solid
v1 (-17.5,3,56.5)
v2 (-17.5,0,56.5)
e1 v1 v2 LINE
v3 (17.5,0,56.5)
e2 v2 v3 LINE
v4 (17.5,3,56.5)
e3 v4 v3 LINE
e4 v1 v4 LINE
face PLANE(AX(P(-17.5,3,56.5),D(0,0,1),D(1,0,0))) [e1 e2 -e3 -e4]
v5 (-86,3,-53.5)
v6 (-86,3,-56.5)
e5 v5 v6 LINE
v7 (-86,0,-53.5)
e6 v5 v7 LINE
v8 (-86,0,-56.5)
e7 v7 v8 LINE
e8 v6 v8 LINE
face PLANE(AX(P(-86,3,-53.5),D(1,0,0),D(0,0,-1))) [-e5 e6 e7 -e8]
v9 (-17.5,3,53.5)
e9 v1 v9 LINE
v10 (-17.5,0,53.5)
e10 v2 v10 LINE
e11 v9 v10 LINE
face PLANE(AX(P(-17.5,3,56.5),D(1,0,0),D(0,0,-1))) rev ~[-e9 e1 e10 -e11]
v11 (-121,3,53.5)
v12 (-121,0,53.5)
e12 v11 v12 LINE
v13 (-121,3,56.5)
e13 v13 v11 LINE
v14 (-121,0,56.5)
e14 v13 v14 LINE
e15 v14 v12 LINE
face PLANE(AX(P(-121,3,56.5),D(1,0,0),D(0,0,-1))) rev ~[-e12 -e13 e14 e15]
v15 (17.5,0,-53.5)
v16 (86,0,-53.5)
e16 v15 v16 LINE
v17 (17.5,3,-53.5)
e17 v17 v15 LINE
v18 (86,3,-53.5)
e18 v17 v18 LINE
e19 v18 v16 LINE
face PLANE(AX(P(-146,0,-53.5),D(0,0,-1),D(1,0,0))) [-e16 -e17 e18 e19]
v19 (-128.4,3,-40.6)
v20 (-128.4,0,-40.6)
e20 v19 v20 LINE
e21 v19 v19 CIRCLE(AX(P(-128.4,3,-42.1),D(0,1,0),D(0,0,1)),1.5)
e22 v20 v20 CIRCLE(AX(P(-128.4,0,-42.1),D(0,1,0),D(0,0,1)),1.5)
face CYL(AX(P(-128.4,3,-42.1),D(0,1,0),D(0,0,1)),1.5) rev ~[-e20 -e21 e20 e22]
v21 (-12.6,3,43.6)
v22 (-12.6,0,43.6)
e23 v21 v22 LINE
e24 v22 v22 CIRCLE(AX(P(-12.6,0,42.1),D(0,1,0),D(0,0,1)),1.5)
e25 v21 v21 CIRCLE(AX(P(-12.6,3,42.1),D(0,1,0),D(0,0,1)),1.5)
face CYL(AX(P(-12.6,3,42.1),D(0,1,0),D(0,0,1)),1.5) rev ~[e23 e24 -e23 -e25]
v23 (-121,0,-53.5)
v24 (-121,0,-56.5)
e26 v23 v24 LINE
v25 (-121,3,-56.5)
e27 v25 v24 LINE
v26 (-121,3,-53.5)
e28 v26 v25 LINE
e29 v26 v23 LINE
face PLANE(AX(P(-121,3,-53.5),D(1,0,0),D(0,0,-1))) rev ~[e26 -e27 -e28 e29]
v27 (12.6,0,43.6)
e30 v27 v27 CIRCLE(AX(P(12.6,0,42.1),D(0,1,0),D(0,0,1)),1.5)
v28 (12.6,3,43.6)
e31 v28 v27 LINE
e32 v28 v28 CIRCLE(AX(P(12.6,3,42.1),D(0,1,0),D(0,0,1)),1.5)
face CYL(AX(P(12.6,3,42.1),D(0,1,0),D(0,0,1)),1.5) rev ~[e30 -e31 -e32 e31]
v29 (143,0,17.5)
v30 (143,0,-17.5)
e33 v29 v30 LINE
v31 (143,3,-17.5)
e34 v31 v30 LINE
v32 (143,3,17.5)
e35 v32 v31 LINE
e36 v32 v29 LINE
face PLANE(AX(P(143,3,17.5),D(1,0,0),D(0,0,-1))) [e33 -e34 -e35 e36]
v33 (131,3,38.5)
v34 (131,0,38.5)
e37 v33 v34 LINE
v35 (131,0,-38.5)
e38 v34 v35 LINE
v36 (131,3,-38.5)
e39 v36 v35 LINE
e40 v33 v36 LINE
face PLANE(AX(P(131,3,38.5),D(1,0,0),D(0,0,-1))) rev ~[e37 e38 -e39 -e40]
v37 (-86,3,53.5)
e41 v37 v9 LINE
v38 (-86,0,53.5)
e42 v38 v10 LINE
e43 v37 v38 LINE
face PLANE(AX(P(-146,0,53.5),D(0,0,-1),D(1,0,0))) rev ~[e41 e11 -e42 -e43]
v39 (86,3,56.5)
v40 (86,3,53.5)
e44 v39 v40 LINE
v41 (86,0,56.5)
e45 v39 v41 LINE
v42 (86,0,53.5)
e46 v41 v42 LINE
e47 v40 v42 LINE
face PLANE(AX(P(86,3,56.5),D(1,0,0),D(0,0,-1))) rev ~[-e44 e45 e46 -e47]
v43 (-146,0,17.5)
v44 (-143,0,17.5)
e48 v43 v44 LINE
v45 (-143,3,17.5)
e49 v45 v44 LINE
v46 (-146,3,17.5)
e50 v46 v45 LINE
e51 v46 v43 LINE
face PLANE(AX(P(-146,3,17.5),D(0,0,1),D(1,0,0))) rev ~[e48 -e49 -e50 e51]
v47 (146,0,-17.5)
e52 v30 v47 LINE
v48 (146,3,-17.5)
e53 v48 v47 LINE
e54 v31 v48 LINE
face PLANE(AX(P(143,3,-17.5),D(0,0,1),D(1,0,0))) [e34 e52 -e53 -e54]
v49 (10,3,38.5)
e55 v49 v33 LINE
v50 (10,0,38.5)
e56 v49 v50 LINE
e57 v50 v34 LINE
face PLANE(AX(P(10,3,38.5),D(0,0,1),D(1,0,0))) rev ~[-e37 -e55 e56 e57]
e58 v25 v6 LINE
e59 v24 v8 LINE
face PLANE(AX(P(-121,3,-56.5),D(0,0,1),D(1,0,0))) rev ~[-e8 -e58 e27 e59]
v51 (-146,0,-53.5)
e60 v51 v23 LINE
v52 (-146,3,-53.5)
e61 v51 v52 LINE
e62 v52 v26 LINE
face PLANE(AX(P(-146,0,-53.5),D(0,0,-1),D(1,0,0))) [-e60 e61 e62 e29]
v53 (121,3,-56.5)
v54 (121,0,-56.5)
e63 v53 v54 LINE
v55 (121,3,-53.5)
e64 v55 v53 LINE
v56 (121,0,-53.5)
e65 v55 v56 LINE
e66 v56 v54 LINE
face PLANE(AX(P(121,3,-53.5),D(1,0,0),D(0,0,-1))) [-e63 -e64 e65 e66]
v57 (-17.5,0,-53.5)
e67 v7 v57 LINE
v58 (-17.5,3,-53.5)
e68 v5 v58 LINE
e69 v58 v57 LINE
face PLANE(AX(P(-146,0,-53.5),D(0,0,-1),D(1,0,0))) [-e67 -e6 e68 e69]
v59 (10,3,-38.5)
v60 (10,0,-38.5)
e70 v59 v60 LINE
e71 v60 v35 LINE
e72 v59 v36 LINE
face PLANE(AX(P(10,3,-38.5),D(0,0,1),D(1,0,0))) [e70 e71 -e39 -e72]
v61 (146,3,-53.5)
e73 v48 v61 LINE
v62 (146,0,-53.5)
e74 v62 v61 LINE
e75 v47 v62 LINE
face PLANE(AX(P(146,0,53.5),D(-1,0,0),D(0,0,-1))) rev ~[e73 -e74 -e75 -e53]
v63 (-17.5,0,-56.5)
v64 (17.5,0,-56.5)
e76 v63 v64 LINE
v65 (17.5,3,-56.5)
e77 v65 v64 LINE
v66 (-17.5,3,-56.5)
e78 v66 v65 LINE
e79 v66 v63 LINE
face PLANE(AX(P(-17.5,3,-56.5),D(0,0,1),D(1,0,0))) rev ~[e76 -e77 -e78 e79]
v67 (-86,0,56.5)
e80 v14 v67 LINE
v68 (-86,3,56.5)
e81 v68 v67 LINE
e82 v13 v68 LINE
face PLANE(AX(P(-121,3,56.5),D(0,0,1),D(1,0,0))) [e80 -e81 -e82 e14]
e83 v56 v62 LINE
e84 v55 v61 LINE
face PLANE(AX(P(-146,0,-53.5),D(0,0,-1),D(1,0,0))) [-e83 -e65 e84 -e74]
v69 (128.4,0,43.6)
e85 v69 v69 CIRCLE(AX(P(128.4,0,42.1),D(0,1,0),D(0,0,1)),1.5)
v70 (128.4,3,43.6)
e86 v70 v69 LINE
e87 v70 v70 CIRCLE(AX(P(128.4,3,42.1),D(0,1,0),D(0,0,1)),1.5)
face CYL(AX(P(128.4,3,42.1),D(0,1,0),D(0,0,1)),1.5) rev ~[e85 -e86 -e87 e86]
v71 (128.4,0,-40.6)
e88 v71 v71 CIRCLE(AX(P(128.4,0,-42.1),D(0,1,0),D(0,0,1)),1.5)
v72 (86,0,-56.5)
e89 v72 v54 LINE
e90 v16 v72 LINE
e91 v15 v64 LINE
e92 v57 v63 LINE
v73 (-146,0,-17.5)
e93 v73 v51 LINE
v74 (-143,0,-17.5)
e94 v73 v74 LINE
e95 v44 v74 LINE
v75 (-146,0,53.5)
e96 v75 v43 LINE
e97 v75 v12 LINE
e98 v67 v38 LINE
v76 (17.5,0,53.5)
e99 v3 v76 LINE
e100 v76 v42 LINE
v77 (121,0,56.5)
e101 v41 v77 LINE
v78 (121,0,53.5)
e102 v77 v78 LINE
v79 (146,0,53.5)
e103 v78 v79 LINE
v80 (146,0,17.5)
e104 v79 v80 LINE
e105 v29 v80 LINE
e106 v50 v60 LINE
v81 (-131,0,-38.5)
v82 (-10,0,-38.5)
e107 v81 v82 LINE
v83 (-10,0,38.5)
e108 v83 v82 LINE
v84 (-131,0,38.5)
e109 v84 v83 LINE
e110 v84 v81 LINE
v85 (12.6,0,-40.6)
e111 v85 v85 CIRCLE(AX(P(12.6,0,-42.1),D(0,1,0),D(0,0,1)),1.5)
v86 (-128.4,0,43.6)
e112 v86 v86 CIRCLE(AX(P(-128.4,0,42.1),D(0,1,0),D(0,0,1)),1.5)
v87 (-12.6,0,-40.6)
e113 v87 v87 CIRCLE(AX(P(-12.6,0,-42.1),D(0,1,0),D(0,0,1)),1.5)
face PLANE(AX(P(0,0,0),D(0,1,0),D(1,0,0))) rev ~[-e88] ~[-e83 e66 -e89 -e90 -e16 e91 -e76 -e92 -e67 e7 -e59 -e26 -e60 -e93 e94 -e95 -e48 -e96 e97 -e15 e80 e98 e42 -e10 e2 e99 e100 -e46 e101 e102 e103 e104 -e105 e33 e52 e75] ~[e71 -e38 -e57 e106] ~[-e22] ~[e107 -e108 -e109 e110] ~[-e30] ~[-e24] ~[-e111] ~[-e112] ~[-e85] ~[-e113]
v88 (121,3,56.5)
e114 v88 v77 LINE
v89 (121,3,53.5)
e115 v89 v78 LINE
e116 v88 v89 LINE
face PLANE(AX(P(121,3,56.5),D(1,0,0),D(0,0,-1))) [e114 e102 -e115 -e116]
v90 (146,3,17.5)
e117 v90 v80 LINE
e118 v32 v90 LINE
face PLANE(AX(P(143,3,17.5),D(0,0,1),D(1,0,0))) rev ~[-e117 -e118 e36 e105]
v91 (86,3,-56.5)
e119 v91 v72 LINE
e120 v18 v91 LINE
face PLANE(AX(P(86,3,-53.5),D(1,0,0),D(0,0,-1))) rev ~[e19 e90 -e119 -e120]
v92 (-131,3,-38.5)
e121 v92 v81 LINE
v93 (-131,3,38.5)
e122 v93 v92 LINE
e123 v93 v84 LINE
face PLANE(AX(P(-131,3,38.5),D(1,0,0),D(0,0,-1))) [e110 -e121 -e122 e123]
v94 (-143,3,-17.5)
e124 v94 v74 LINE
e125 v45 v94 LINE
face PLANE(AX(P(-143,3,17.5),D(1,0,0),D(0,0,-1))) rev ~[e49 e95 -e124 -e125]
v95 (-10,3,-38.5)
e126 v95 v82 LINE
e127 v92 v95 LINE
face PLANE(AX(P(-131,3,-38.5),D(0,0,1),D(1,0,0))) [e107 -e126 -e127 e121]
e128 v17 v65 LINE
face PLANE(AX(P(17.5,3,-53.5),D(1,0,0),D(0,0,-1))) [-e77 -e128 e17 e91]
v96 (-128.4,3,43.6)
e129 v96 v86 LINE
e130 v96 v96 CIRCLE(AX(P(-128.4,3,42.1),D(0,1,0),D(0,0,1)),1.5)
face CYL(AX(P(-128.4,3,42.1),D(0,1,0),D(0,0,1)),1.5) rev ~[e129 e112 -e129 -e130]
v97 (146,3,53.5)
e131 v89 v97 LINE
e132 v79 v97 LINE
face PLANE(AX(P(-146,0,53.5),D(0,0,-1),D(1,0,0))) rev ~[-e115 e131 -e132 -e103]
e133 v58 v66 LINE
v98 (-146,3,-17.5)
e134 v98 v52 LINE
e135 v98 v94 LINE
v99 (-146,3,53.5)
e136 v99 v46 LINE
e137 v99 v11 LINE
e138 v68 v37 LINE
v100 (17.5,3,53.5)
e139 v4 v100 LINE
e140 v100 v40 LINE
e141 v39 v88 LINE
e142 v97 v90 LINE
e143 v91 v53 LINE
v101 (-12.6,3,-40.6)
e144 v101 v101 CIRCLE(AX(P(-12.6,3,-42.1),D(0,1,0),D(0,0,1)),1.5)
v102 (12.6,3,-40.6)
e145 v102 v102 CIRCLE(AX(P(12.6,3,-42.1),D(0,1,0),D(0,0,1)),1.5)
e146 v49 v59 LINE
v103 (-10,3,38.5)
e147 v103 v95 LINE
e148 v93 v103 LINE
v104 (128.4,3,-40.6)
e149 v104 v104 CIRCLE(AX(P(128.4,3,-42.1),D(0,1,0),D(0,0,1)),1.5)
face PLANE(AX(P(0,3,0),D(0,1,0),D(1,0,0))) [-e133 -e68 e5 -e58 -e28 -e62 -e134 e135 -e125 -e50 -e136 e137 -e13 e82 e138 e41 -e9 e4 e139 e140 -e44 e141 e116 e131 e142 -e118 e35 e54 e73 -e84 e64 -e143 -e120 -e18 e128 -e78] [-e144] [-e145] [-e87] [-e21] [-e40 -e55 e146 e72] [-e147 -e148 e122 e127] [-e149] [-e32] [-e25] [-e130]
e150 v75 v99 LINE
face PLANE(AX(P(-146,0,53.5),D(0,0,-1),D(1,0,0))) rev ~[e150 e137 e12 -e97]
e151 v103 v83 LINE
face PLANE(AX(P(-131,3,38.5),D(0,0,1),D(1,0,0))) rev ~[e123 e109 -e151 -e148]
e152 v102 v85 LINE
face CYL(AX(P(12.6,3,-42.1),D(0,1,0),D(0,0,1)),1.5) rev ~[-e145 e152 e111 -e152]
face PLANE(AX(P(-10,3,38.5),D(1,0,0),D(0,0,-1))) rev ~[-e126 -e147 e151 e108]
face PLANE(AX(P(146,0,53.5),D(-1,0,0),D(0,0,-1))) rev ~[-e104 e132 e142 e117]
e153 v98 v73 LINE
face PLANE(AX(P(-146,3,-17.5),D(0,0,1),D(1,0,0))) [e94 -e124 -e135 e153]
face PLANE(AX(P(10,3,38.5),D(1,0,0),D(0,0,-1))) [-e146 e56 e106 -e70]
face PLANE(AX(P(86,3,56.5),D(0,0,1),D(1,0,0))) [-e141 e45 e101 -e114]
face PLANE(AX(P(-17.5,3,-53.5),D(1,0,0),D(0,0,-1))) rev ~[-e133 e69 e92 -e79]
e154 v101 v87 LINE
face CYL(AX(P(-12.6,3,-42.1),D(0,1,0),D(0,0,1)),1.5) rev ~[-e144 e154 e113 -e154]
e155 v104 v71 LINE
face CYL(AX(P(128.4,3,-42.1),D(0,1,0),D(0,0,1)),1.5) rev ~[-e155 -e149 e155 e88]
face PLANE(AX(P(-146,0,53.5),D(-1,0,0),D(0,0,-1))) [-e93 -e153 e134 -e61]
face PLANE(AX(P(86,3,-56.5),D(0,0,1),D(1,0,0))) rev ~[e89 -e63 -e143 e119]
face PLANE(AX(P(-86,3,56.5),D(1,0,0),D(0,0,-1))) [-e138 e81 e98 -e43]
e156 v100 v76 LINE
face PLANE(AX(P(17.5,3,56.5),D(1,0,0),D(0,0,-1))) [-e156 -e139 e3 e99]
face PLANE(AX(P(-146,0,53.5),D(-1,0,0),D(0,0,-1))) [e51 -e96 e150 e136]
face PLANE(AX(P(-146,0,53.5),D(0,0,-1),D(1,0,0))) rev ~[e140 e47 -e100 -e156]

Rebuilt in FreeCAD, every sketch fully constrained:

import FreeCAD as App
import Part
import Sketcher
Q = App.Units.Quantity


def add_polygon(sketch, points):
    """Adds a closed chain of lines whose ends are joined by coincident constraints."""
    first, n = sketch.GeometryCount, len(points)
    for a, b in zip(points, points[1:] + points[:1]):
        sketch.addGeometry(Part.LineSegment(App.Vector(*a, 0), App.Vector(*b, 0)), False)
    for i in range(n):
        sketch.addConstraint(Sketcher.Constraint("Coincident", first + i, 2, first + (i + 1) % n, 1))

doc = App.newDocument("Part")
body = doc.addObject("PartDesign::Body", "Body")

# Sketch on XZ plane
sketch1 = body.newObject("Sketcher::SketchObject", "Sketch")
sketch1.AttachmentSupport = (doc.getObject("XZ_Plane"), [""])
sketch1.MapMode = "FlatFace"
add_polygon(sketch1, [(-146, -54), (-146, 54), (146, 54), (146, -54)])  # lines 0-3
sketch1.addConstraint([
    Sketcher.Constraint("Vertical", 0),
    Sketcher.Constraint("Horizontal", 1),
    Sketcher.Constraint("Vertical", 2),
    Sketcher.Constraint("Horizontal", 3),
    Sketcher.Constraint("Symmetric", 0, 2, 2, 2, -1, 1),
    Sketcher.Constraint("DistanceX", 1, 1, 1, 2, Q("292 mm")),
    Sketcher.Constraint("DistanceY", 0, 1, 0, 2, Q("107 mm")),
])
pad1 = body.newObject("PartDesign::Pad", "Pad")
pad1.Profile = sketch1
pad1.Length = 3
pad1.Reversed = True

# Sketch on XZ plane
sketch2 = body.newObject("Sketcher::SketchObject", "Sketch001")
sketch2.AttachmentSupport = (doc.getObject("XZ_Plane"), [""])
sketch2.MapMode = "FlatFace"
sketch2.AttachmentOffset = App.Placement(App.Vector(0, 0, -3), App.Rotation())
add_polygon(sketch2, [(-131, -38), (-131, 38), (-10, 38), (-10, -38)])  # lines 0-3
sketch2.addConstraint([
    Sketcher.Constraint("Vertical", 0),
    Sketcher.Constraint("Horizontal", 1),
    Sketcher.Constraint("Vertical", 2),
    Sketcher.Constraint("Horizontal", 3),
    Sketcher.Constraint("DistanceX", 1, 1, 1, 2, Q("121 mm")),
    Sketcher.Constraint("DistanceY", 0, 1, 0, 2, Q("77 mm")),
    Sketcher.Constraint("DistanceX", 0, 2, -1, 1, Q("131 mm")),
    Sketcher.Constraint("DistanceY", -1, 1, 0, 2, Q("38.5 mm")),
])
pocket1 = body.newObject("PartDesign::Pocket", "Pocket")
pocket1.Profile = sketch2
pocket1.Length = 3
pocket1.Reversed = True

# Sketch on XZ plane
sketch3 = body.newObject("Sketcher::SketchObject", "Sketch002")
sketch3.AttachmentSupport = (doc.getObject("XZ_Plane"), [""])
sketch3.MapMode = "FlatFace"
sketch3.AttachmentOffset = App.Placement(App.Vector(0, 0, -3), App.Rotation())
add_polygon(sketch3, [(10, -38), (10, 38), (131, 38), (131, -38)])  # lines 0-3
sketch3.addConstraint([
    Sketcher.Constraint("Vertical", 0),
    Sketcher.Constraint("Horizontal", 1),
    Sketcher.Constraint("Vertical", 2),
    Sketcher.Constraint("Horizontal", 3),
    Sketcher.Constraint("DistanceX", 1, 1, 1, 2, Q("121 mm")),
    Sketcher.Constraint("DistanceY", 0, 1, 0, 2, Q("77 mm")),
    Sketcher.Constraint("DistanceX", -1, 1, 0, 2, Q("10 mm")),
    Sketcher.Constraint("DistanceY", -1, 1, 0, 2, Q("38.5 mm")),
])
pocket2 = body.newObject("PartDesign::Pocket", "Pocket001")
pocket2.Profile = sketch3
pocket2.Length = 3
pocket2.Reversed = True

# Sketch on XZ plane
sketch4 = body.newObject("Sketcher::SketchObject", "Sketch003")
sketch4.AttachmentSupport = (doc.getObject("XZ_Plane"), [""])
sketch4.MapMode = "FlatFace"
sketch4.AttachmentOffset = App.Placement(App.Vector(0, 0, -3), App.Rotation())
add_polygon(sketch4, [(143, -17.5), (143, 17.5), (146, 17.5), (146, -17.5)])  # lines 0-3
add_polygon(sketch4, [(-146, -17.5), (-146, 17.5), (-143, 17.5), (-143, -17.5)])  # lines 4-7
sketch4.addConstraint([
    Sketcher.Constraint("Vertical", 0),
    Sketcher.Constraint("Horizontal", 1),
    Sketcher.Constraint("Vertical", 2),
    Sketcher.Constraint("Horizontal", 3),
    Sketcher.Constraint("Vertical", 4),
    Sketcher.Constraint("Horizontal", 5),
    Sketcher.Constraint("Vertical", 6),
    Sketcher.Constraint("Horizontal", 7),
    Sketcher.Constraint("Symmetric", 2, 2, 4, 2, -1, 1),
    Sketcher.Constraint("Symmetric", 0, 2, 6, 2, -1, 1),
    Sketcher.Constraint("Horizontal", 1, 2, 4, 2),
    Sketcher.Constraint("DistanceX", 1, 1, 1, 2, Q("3 mm")),
    Sketcher.Constraint("DistanceY", 0, 1, 0, 2, Q("35 mm")),
    Sketcher.Constraint("DistanceX", -1, 1, 0, 2, Q("143 mm")),
])
pocket3 = body.newObject("PartDesign::Pocket", "Pocket002")
pocket3.Profile = sketch4
pocket3.Length = 3
pocket3.Reversed = True

# Sketch on XZ plane
sketch5 = body.newObject("Sketcher::SketchObject", "Sketch004")
sketch5.AttachmentSupport = (doc.getObject("XZ_Plane"), [""])
sketch5.MapMode = "FlatFace"
sketch5.AttachmentOffset = App.Placement(App.Vector(0, 0, -3), App.Rotation())
add_polygon(sketch5, [(-121, 53.5), (-121, 56.5), (-86, 56.5), (-86, 53.5)])  # lines 0-3
add_polygon(sketch5, [(-121, -56.5), (-121, -53.5), (-86, -53.5), (-86, -56.5)])  # lines 4-7
add_polygon(sketch5, [(86, -56.5), (86, -53.5), (121, -53.5), (121, -56.5)])  # lines 8-11
add_polygon(sketch5, [(86, 53.5), (86, 56.5), (121, 56.5), (121, 53.5)])  # lines 12-15
sketch5.addConstraint([
    Sketcher.Constraint("Vertical", 0),
    Sketcher.Constraint("Horizontal", 1),
    Sketcher.Constraint("Vertical", 2),
    Sketcher.Constraint("Horizontal", 3),
    Sketcher.Constraint("Vertical", 4),
    Sketcher.Constraint("Horizontal", 5),
    Sketcher.Constraint("Vertical", 6),
    Sketcher.Constraint("Horizontal", 7),
    Sketcher.Constraint("Vertical", 8),
    Sketcher.Constraint("Horizontal", 9),
    Sketcher.Constraint("Vertical", 10),
    Sketcher.Constraint("Horizontal", 11),
    Sketcher.Constraint("Vertical", 12),
    Sketcher.Constraint("Horizontal", 13),
    Sketcher.Constraint("Vertical", 14),
    Sketcher.Constraint("Horizontal", 15),
    Sketcher.Constraint("Symmetric", 2, 2, 8, 2, -1, 1),
    Sketcher.Constraint("Symmetric", 0, 2, 10, 2, -1, 1),
    Sketcher.Constraint("Symmetric", 6, 2, 12, 2, -1, 1),
    Sketcher.Constraint("Symmetric", 4, 2, 14, 2, -1, 1),
    Sketcher.Constraint("Symmetric", 5, 2, 8, 2, -2),
    Sketcher.Constraint("Symmetric", 7, 2, 10, 2, -2),
    Sketcher.Constraint("DistanceX", 1, 1, 1, 2, Q("35 mm")),
    Sketcher.Constraint("DistanceY", 0, 1, 0, 2, Q("3 mm")),
    Sketcher.Constraint("DistanceX", 0, 2, -1, 1, Q("121 mm")),
    Sketcher.Constraint("DistanceY", 4, 2, 3, 2, Q("107 mm")),
])
pad2 = body.newObject("PartDesign::Pad", "Pad001")
pad2.Profile = sketch5
pad2.Length = 3

# Sketch on XZ plane
sketch6 = body.newObject("Sketcher::SketchObject", "Sketch005")
sketch6.AttachmentSupport = (doc.getObject("XZ_Plane"), [""])
sketch6.MapMode = "FlatFace"
sketch6.AttachmentOffset = App.Placement(App.Vector(0, 0, -3), App.Rotation())
add_polygon(sketch6, [(-17.5, 53.5), (-17.5, 56.5), (17.5, 56.5), (17.5, 53.5)])  # lines 0-3
add_polygon(sketch6, [(-17.5, -56.5), (-17.5, -53.5), (17.5, -53.5), (17.5, -56.5)])  # lines 4-7
sketch6.addConstraint([
    Sketcher.Constraint("Vertical", 0),
    Sketcher.Constraint("Horizontal", 1),
    Sketcher.Constraint("Vertical", 2),
    Sketcher.Constraint("Horizontal", 3),
    Sketcher.Constraint("Vertical", 4),
    Sketcher.Constraint("Horizontal", 5),
    Sketcher.Constraint("Vertical", 6),
    Sketcher.Constraint("Horizontal", 7),
    Sketcher.Constraint("Symmetric", 2, 2, 4, 2, -1, 1),
    Sketcher.Constraint("Symmetric", 0, 2, 6, 2, -1, 1),
    Sketcher.Constraint("Vertical", 3, 2, 4, 2),
    Sketcher.Constraint("DistanceX", 1, 1, 1, 2, Q("35 mm")),
    Sketcher.Constraint("DistanceY", 0, 1, 0, 2, Q("3 mm")),
    Sketcher.Constraint("DistanceY", 4, 2, 3, 2, Q("107 mm")),
])
pad3 = body.newObject("PartDesign::Pad", "Pad002")
pad3.Profile = sketch6
pad3.Length = 3

# Sketch on XZ plane
sketch7 = body.newObject("Sketcher::SketchObject", "Sketch006")
sketch7.AttachmentSupport = (doc.getObject("XZ_Plane"), [""])
sketch7.MapMode = "FlatFace"
sketch7.AttachmentOffset = App.Placement(App.Vector(0, 0, -3), App.Rotation())
sketch7.addGeometry([
    Part.Circle(App.Vector(-128.4, 42.1, 0), App.Vector(0, 0, 1), 1.5),  # 0
    Part.Circle(App.Vector(-12.6, 42.1, 0), App.Vector(0, 0, 1), 1.5),  # 1
    Part.Circle(App.Vector(-12.6, -42.1, 0), App.Vector(0, 0, 1), 1.5),  # 2
    Part.Circle(App.Vector(-128.4, -42.1, 0), App.Vector(0, 0, 1), 1.5),  # 3
    Part.Circle(App.Vector(12.6, 42.1, 0), App.Vector(0, 0, 1), 1.5),  # 4
    Part.Circle(App.Vector(128.4, 42.1, 0), App.Vector(0, 0, 1), 1.5),  # 5
    Part.Circle(App.Vector(128.4, -42.1, 0), App.Vector(0, 0, 1), 1.5),  # 6
    Part.Circle(App.Vector(12.6, -42.1, 0), App.Vector(0, 0, 1), 1.5),  # 7
], False)
sketch7.addConstraint([
    Sketcher.Constraint("Equal", 0, 1),
    Sketcher.Constraint("Equal", 1, 2),
    Sketcher.Constraint("Equal", 2, 3),
    Sketcher.Constraint("Equal", 3, 4),
    Sketcher.Constraint("Equal", 4, 5),
    Sketcher.Constraint("Equal", 5, 6),
    Sketcher.Constraint("Equal", 6, 7),
    Sketcher.Constraint("Symmetric", 2, 3, 4, 3, -1, 1),
    Sketcher.Constraint("Symmetric", 3, 3, 5, 3, -1, 1),
    Sketcher.Constraint("Symmetric", 0, 3, 6, 3, -1, 1),
    Sketcher.Constraint("Symmetric", 1, 3, 7, 3, -1, 1),
    Sketcher.Constraint("Symmetric", 1, 3, 4, 3, -2),
    Sketcher.Constraint("Symmetric", 0, 3, 5, 3, -2),
    Sketcher.Constraint("Horizontal", 0, 3, 1, 3),
    Sketcher.Constraint("Diameter", 0, Q("3 mm")),
    Sketcher.Constraint("DistanceX", 0, 3, 4, 3, Q("141 mm")),
    Sketcher.Constraint("DistanceX", 0, 3, -1, 1, Q("128.4 mm")),
    Sketcher.Constraint("DistanceY", -1, 1, 0, 3, Q("42.1 mm")),
])
pocket4 = body.newObject("PartDesign::Pocket", "Pocket003")
pocket4.Profile = sketch7
pocket4.Length = 10
pocket4.Reversed = True

doc.recompute()
